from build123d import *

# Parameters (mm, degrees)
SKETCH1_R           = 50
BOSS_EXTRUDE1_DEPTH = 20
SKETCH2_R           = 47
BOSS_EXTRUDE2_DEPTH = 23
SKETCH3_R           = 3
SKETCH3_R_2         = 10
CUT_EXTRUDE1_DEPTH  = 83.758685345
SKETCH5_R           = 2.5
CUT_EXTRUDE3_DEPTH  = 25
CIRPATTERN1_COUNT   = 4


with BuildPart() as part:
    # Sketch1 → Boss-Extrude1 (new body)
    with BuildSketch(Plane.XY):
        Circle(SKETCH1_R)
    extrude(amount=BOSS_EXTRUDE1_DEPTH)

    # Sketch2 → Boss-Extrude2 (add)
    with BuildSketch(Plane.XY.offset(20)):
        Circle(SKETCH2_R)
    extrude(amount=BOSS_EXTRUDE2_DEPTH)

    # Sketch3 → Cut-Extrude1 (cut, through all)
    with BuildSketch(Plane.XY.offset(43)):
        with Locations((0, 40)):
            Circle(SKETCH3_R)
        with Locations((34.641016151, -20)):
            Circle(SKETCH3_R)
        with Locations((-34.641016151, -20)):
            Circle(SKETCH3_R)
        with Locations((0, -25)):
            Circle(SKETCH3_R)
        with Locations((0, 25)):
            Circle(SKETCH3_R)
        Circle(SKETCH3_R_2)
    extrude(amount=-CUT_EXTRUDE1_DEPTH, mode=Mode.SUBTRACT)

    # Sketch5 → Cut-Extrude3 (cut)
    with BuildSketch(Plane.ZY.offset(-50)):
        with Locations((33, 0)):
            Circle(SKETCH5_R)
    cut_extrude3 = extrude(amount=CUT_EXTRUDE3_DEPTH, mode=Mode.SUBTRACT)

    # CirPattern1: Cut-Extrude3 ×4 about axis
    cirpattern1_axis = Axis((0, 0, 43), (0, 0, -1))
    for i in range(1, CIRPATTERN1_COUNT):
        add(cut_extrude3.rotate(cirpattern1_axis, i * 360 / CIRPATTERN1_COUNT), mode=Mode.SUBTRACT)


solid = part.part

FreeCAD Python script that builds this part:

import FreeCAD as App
import Part
import Sketcher

doc = App.newDocument("Part")
body = doc.addObject("PartDesign::Body", "Body")

# Sketch on XY plane
sketch1 = body.newObject("Sketcher::SketchObject", "Sketch")
sketch1.AttachmentSupport = (doc.getObject("XY_Plane"), [""])
sketch1.MapMode = "FlatFace"
sketch1.addGeometry(Part.Circle(App.Vector(0, 0, 0), App.Vector(0, 0, 1), 50), False)
sketch1.addConstraint(Sketcher.Constraint("Coincident", 0, 3, -1, 1))
sketch1.addConstraint(Sketcher.Constraint("Diameter", 0, 100.0))
pad1 = body.newObject("PartDesign::Pad", "Pad")
pad1.Profile = sketch1
pad1.Length = 20

# Sketch on XY plane
sketch2 = body.newObject("Sketcher::SketchObject", "Sketch001")
sketch2.AttachmentSupport = (doc.getObject("XY_Plane"), [""])
sketch2.MapMode = "FlatFace"
sketch2.AttachmentOffset = App.Placement(App.Vector(0, 0, 20), App.Rotation())
sketch2.addGeometry(Part.Circle(App.Vector(0, 0, 0), App.Vector(0, 0, 1), 47), False)
sketch2.addConstraint(Sketcher.Constraint("Coincident", 0, 3, -1, 1))
sketch2.addConstraint(Sketcher.Constraint("Diameter", 0, 94.0))
pad2 = body.newObject("PartDesign::Pad", "Pad001")
pad2.Profile = sketch2
pad2.Length = 23

# Sketch on XY plane
sketch3 = body.newObject("Sketcher::SketchObject", "Sketch002")
sketch3.AttachmentSupport = (doc.getObject("XY_Plane"), [""])
sketch3.MapMode = "FlatFace"
sketch3.AttachmentOffset = App.Placement(App.Vector(0, 0, 43), App.Rotation())
sketch3.addGeometry(Part.Circle(App.Vector(0, 40, 0), App.Vector(0, 0, 1), 3), False)
sketch3.addGeometry(Part.Circle(App.Vector(34.641016, -20, 0), App.Vector(0, 0, 1), 3), False)
sketch3.addGeometry(Part.Circle(App.Vector(-34.641016, -20, 0), App.Vector(0, 0, 1), 3), False)
sketch3.addGeometry(Part.Circle(App.Vector(0, -25, 0), App.Vector(0, 0, 1), 3), False)
sketch3.addGeometry(Part.Circle(App.Vector(0, 25, 0), App.Vector(0, 0, 1), 3), False)
sketch3.addGeometry(Part.Circle(App.Vector(0, 0, 0), App.Vector(0, 0, 1), 10), False)
sketch3.addConstraint(Sketcher.Constraint("Coincident", 5, 3, -1, 1))
sketch3.addConstraint(Sketcher.Constraint("Equal", 0, 1))
sketch3.addConstraint(Sketcher.Constraint("Equal", 1, 2))
sketch3.addConstraint(Sketcher.Constraint("Equal", 2, 3))
sketch3.addConstraint(Sketcher.Constraint("Equal", 3, 4))
sketch3.addConstraint(Sketcher.Constraint("Symmetric", 3, 3, 4, 3, -1, 1))
sketch3.addConstraint(Sketcher.Constraint("Symmetric", 1, 3, 2, 3, -2))
sketch3.addConstraint(Sketcher.Constraint("PointOnObject", 0, 3, -2))
sketch3.addConstraint(Sketcher.Constraint("PointOnObject", 3, 3, -2))
sketch3.addConstraint(Sketcher.Constraint("Diameter", 0, 6.0))
sketch3.addConstraint(Sketcher.Constraint("Diameter", 5, 20.0))
sketch3.addConstraint(Sketcher.Constraint("DistanceY", -1, 1, 0, 3, 40.0))
sketch3.addConstraint(Sketcher.Constraint("DistanceY", 1, 3, -1, 1, 20.0))
sketch3.addConstraint(Sketcher.Constraint("DistanceY", 3, 3, -1, 1, 25.0))
sketch3.addConstraint(Sketcher.Constraint("DistanceX", -1, 1, 1, 3, 34.641016))
pocket1 = body.newObject("PartDesign::Pocket", "Pocket")
pocket1.Profile = sketch3
pocket1.Type = "ThroughAll"

# Sketch on YZ plane
sketch4 = body.newObject("Sketcher::SketchObject", "Sketch003")
sketch4.AttachmentSupport = (doc.getObject("YZ_Plane"), [""])
sketch4.MapMode = "FlatFace"
sketch4.AttachmentOffset = App.Placement(App.Vector(0, 0, 50), App.Rotation())
sketch4.addGeometry(Part.Circle(App.Vector(0, 33, 0), App.Vector(0, 0, 1), 2.5), False)
sketch4.addConstraint(Sketcher.Constraint("PointOnObject", 0, 3, -2))
sketch4.addConstraint(Sketcher.Constraint("Diameter", 0, 5.0))
sketch4.addConstraint(Sketcher.Constraint("DistanceY", -1, 1, 0, 3, 33.0))
pocket2 = body.newObject("PartDesign::Pocket", "Pocket001")
pocket2.Profile = sketch4
pocket2.Length = 25
doc.recompute()

polarpattern = body.newObject("PartDesign::PolarPattern", "PolarPattern")
polarpattern.Originals = [pocket2]
polarpattern.Axis = (doc.getObject("Z_Axis"), [""])
polarpattern.Angle = 360
polarpattern.Occurrences = 4
body.Tip = polarpattern

doc.recompute()
